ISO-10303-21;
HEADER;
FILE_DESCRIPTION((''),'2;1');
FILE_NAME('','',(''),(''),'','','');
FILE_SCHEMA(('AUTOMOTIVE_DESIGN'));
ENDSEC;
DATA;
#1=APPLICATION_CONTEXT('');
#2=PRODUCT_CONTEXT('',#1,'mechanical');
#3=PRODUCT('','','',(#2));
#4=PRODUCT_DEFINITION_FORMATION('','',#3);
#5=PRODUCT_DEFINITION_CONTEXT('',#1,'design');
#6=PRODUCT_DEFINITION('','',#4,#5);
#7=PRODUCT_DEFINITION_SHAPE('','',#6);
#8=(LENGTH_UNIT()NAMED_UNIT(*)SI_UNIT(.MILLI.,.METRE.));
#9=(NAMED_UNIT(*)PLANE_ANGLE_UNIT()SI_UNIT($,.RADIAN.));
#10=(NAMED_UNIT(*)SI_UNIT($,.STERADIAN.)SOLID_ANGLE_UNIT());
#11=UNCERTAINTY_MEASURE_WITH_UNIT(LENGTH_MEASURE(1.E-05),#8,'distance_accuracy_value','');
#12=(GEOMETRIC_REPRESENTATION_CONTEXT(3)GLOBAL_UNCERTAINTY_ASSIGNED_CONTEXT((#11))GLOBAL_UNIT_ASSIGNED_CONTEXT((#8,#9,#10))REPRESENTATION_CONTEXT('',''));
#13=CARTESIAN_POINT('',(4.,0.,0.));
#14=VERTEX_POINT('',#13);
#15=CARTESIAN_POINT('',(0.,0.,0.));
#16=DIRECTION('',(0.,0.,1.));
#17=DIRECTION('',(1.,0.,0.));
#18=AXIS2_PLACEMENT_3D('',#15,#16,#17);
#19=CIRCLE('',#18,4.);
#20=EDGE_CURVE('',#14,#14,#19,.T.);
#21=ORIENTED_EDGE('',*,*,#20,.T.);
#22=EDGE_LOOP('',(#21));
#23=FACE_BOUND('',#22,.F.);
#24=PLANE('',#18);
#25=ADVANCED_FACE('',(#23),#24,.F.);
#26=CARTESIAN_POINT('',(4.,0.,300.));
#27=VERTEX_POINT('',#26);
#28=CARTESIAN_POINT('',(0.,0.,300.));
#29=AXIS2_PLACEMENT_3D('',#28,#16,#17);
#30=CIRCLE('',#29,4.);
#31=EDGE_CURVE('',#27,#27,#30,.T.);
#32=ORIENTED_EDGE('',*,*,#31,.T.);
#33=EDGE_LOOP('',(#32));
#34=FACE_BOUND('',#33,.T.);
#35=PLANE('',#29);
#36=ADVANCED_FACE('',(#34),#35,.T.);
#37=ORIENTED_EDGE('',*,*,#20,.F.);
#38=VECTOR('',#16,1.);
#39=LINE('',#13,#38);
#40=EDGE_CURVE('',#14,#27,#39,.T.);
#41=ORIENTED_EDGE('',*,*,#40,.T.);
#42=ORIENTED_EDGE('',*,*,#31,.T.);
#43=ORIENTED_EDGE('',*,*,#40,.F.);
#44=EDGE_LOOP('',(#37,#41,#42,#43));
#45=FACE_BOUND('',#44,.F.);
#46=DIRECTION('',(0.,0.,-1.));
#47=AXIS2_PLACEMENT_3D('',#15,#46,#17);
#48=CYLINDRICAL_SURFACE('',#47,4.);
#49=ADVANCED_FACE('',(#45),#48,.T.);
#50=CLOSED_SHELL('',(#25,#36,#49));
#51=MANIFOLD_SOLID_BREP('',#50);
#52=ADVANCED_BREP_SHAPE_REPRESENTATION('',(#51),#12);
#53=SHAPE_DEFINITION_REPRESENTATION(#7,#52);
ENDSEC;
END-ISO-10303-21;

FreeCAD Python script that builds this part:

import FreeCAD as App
import Part
import Sketcher
from FreeCAD import Vector
Q = App.Units.Quantity

doc = App.newDocument("Part")
body = doc.addObject("PartDesign::Body", "Body")

sketch1 = body.newObject("Sketcher::SketchObject", "Sketch")
sketch1.AttachmentSupport = (doc.getObject("XY_Plane"), [""])
sketch1.MapMode = "FlatFace"
sketch1.addGeometry(Part.Circle(Vector(0, 0, 0), Vector(0, 0, 1), 4), False)
sketch1.addConstraint(Sketcher.Constraint("Coincident", 0, 3, -1, 1))
sketch1.addConstraint(Sketcher.Constraint("Diameter", 0, Q("8 mm")))
pad1 = body.newObject("PartDesign::Pad", "Pad")
pad1.Profile = sketch1
pad1.Length = 300

doc.recompute()
